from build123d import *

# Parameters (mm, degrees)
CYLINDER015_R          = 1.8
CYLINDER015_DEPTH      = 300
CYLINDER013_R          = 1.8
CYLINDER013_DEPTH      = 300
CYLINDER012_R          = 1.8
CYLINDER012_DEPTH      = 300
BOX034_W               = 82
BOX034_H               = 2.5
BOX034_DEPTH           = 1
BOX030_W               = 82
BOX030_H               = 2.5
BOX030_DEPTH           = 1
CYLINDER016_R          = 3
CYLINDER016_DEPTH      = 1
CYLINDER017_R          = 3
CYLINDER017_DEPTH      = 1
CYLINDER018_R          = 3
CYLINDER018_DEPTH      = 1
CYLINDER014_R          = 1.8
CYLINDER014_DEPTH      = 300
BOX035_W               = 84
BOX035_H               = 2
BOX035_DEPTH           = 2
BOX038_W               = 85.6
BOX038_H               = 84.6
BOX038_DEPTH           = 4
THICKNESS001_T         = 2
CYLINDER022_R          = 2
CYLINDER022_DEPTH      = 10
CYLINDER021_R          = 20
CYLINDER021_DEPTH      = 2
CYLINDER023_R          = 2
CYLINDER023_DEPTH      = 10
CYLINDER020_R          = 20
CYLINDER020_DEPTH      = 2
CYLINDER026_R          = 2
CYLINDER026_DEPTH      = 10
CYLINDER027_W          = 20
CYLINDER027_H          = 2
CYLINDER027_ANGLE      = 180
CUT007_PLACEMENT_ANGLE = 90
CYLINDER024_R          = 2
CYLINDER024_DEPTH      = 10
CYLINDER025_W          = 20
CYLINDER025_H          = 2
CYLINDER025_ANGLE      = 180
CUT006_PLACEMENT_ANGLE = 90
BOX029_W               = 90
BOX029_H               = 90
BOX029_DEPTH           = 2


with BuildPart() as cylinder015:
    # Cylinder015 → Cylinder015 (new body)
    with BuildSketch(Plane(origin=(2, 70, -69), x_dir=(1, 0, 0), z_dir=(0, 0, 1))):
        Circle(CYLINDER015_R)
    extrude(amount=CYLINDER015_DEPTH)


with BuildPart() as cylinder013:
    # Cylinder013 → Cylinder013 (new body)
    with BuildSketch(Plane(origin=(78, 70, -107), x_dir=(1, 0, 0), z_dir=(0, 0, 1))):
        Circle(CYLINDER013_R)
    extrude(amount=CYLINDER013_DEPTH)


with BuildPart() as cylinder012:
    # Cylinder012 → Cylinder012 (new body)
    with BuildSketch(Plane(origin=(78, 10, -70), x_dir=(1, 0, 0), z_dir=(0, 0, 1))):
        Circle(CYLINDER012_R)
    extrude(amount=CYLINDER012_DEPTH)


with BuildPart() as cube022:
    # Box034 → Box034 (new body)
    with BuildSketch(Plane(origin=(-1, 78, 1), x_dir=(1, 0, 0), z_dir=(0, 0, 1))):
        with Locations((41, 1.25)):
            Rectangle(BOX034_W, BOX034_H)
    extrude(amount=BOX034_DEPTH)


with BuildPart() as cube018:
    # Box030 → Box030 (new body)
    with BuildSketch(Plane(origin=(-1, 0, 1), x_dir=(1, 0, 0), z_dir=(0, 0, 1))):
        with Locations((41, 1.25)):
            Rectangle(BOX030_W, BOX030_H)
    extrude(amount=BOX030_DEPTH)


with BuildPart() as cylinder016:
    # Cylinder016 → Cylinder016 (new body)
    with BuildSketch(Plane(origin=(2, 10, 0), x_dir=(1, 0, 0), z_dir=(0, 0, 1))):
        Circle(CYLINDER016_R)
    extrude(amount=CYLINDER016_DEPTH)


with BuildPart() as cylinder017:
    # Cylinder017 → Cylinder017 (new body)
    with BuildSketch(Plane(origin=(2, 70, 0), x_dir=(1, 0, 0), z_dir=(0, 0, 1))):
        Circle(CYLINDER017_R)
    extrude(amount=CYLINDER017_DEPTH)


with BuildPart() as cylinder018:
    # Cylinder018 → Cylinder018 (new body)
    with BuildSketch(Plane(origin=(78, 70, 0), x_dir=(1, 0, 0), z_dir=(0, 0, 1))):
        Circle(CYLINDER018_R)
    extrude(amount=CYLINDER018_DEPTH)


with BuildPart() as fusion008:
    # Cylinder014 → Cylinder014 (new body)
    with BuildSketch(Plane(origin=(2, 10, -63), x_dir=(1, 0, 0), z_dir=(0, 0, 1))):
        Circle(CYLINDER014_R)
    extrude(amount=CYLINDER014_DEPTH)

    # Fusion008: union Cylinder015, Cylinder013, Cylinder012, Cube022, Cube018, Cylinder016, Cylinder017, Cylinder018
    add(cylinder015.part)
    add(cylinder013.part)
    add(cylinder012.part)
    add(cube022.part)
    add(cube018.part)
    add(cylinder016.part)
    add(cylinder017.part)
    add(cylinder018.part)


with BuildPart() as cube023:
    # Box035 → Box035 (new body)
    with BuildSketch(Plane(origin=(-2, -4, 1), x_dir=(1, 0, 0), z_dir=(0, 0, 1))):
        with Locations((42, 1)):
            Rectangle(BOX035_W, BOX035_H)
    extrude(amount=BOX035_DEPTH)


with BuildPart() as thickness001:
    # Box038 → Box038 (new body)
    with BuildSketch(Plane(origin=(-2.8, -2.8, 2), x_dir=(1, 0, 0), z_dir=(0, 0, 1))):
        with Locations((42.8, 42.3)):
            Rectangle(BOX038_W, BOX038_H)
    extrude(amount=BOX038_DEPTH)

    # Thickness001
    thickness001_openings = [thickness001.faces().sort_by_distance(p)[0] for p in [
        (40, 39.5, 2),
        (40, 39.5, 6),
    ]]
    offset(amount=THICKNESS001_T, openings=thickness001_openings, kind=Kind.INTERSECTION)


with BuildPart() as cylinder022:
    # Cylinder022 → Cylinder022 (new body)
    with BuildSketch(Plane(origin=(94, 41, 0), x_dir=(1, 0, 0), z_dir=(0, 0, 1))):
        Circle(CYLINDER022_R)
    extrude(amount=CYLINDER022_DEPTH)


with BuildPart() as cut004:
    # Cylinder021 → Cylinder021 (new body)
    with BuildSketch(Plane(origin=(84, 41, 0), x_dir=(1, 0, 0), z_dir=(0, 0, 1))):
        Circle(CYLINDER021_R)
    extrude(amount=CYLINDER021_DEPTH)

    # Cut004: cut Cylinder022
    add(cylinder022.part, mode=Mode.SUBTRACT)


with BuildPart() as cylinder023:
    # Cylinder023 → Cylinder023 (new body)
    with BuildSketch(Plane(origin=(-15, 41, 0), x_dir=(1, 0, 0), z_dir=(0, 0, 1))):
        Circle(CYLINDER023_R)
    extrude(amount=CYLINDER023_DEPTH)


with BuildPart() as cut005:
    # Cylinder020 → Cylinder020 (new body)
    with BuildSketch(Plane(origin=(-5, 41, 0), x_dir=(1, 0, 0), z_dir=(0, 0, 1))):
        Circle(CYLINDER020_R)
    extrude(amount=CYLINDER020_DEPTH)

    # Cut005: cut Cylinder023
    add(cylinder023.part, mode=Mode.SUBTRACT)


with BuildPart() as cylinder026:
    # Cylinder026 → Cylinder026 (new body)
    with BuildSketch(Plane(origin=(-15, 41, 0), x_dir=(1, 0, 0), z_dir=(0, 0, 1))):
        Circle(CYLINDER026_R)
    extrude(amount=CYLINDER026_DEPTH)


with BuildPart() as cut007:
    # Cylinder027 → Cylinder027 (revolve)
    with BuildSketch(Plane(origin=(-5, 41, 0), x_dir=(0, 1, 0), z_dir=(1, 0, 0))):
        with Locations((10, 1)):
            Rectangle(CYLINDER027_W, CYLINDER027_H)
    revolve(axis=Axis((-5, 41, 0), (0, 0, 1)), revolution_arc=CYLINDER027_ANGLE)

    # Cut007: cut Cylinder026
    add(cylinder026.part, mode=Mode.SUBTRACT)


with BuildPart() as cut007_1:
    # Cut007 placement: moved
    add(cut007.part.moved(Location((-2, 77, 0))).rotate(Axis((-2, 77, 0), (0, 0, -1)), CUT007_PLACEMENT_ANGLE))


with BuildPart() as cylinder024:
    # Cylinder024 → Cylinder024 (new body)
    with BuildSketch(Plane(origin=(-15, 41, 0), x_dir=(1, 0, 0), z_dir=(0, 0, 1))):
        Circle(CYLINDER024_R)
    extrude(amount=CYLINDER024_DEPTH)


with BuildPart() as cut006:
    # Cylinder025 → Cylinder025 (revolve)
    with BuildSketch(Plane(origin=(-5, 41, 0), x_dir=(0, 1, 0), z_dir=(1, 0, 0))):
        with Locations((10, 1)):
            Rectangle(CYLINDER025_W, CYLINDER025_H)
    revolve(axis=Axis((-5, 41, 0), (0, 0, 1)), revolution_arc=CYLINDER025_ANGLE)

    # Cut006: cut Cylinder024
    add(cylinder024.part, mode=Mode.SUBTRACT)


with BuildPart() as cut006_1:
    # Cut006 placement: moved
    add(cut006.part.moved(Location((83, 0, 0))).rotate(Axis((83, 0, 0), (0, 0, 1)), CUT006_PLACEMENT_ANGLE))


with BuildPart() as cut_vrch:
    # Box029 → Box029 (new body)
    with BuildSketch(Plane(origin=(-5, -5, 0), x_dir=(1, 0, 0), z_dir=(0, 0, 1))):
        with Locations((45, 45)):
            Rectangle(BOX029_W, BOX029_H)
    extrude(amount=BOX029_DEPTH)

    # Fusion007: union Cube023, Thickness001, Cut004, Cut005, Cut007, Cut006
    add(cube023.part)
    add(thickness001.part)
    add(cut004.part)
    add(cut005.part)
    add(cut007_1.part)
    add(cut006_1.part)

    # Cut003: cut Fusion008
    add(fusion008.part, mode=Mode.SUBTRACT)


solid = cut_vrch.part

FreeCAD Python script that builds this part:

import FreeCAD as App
import Part
import Sketcher
Q = App.Units.Quantity


def faces_at(feature, points):
    """Names of the faces that lie closest to the given points."""
    faces = feature.Shape.Faces
    near = lambda p: min(range(len(faces)), key=lambda i: faces[i].distToShape(Part.Vertex(*p))[0])
    return sorted({f"Face{near(p) + 1}" for p in points})

doc = App.newDocument("Part")
params = doc.addObject("Spreadsheet::Sheet", "Params")
for row, (alias, value) in enumerate([
    ("sketch1_diameter", "3.6 mm"),
    ("pad1_length", "300 mm"),
    ("sketch2_diameter", "3.6 mm"),
    ("pad2_length", "300 mm"),
    ("sketch3_diameter", "3.6 mm"),
    ("pad3_length", "300 mm"),
    ("sketch4_width", "82 mm"),
    ("sketch4_height", "2.5 mm"),
    ("pad4_length", "1 mm"),
    ("sketch5_width", "82 mm"),
    ("sketch5_height", "2.5 mm"),
    ("pad5_length", "1 mm"),
    ("sketch6_diameter", "6 mm"),
    ("pad6_length", "1 mm"),
    ("sketch7_diameter", "6 mm"),
    ("pad7_length", "1 mm"),
    ("sketch8_diameter", "6 mm"),
    ("pad8_length", "1 mm"),
    ("sketch9_diameter", "3.6 mm"),
    ("pad9_length", "300 mm"),
    ("sketch10_width", "84 mm"),
    ("sketch10_height", "2 mm"),
    ("pad10_length", "2 mm"),
    ("sketch11_width", "85.6 mm"),
    ("sketch11_height", "84.6 mm"),
    ("pad11_length", "4 mm"),
    ("thickness_wall", "2 mm"),
    ("sketch12_diameter", "4 mm"),
    ("pad12_length", "10 mm"),
    ("sketch13_diameter", "40 mm"),
    ("pad13_length", "2 mm"),
    ("sketch14_diameter", "4 mm"),
    ("pad14_length", "10 mm"),
    ("sketch15_diameter", "40 mm"),
    ("pad15_length", "2 mm"),
    ("sketch16_diameter", "4 mm"),
    ("pad16_length", "10 mm"),
    ("sketch17_width", "20 mm"),
    ("sketch17_height", "2 mm"),
    ("revolution_angle", "180 deg"),
    ("sketch18_diameter", "4 mm"),
    ("pad17_length", "10 mm"),
    ("sketch19_width", "20 mm"),
    ("sketch19_height", "2 mm"),
    ("revolution2_angle", "180 deg"),
    ("sketch20_width", "90 mm"),
    ("pad18_length", "2 mm"),
], start=1):
    params.set(f"A{row}", alias)
    params.set(f"B{row}", "=" + value)
    params.setAlias(f"B{row}", alias)

body = doc.addObject("PartDesign::Body", "Body")

# Sketch on XY plane
sketch1 = body.newObject("Sketcher::SketchObject", "Sketch")
sketch1.AttachmentSupport = (doc.getObject("XY_Plane"), [""])
sketch1.MapMode = "FlatFace"
sketch1.AttachmentOffset = App.Placement(App.Vector(0, 0, -69), App.Rotation())
sketch1.addGeometry(Part.Circle(App.Vector(2, 70, 0), App.Vector(0, 0, 1), 1.8), False)
sketch1.addConstraint([
    Sketcher.Constraint("Diameter", 0, Q("3.6 mm")),
    Sketcher.Constraint("DistanceX", -1, 1, 0, 3, Q("2 mm")),
    Sketcher.Constraint("DistanceY", -1, 1, 0, 3, Q("70 mm")),
])
sketch1.setExpression("Constraints[0]", "Params.sketch1_diameter")
pad1 = body.newObject("PartDesign::Pad", "Pad")
pad1.Profile = sketch1
pad1.setExpression("Length", "Params.pad1_length")
body2 = doc.addObject("PartDesign::Body", "Body001")

# Sketch on XY plane
sketch2 = body2.newObject("Sketcher::SketchObject", "Sketch001")
sketch2.AttachmentSupport = (doc.getObject("XY_Plane001"), [""])
sketch2.MapMode = "FlatFace"
sketch2.AttachmentOffset = App.Placement(App.Vector(0, 0, -107), App.Rotation())
sketch2.addGeometry(Part.Circle(App.Vector(78, 70, 0), App.Vector(0, 0, 1), 1.8), False)
sketch2.addConstraint([
    Sketcher.Constraint("Diameter", 0, Q("3.6 mm")),
    Sketcher.Constraint("DistanceX", -1, 1, 0, 3, Q("78 mm")),
    Sketcher.Constraint("DistanceY", -1, 1, 0, 3, Q("70 mm")),
])
sketch2.setExpression("Constraints[0]", "Params.sketch2_diameter")
pad2 = body2.newObject("PartDesign::Pad", "Pad001")
pad2.Profile = sketch2
pad2.setExpression("Length", "Params.pad2_length")
body3 = doc.addObject("PartDesign::Body", "Body002")

# Sketch on XY plane
sketch3 = body3.newObject("Sketcher::SketchObject", "Sketch002")
sketch3.AttachmentSupport = (doc.getObject("XY_Plane002"), [""])
sketch3.MapMode = "FlatFace"
sketch3.AttachmentOffset = App.Placement(App.Vector(0, 0, -70), App.Rotation())
sketch3.addGeometry(Part.Circle(App.Vector(78, 10, 0), App.Vector(0, 0, 1), 1.8), False)
sketch3.addConstraint([
    Sketcher.Constraint("Diameter", 0, Q("3.6 mm")),
    Sketcher.Constraint("DistanceX", -1, 1, 0, 3, Q("78 mm")),
    Sketcher.Constraint("DistanceY", -1, 1, 0, 3, Q("10 mm")),
])
sketch3.setExpression("Constraints[0]", "Params.sketch3_diameter")
pad3 = body3.newObject("PartDesign::Pad", "Pad002")
pad3.Profile = sketch3
pad3.setExpression("Length", "Params.pad3_length")
body4 = doc.addObject("PartDesign::Body", "Body003")

# Sketch on XY plane
sketch4 = body4.newObject("Sketcher::SketchObject", "Sketch003")
sketch4.AttachmentSupport = (doc.getObject("XY_Plane003"), [""])
sketch4.MapMode = "FlatFace"
sketch4.AttachmentOffset = App.Placement(App.Vector(0, 0, 1), App.Rotation())
sketch4.addGeometry([
    Part.LineSegment(App.Vector(-1, 80.5, 0), App.Vector(-1, 78, 0)),
    Part.LineSegment(App.Vector(-1, 78, 0), App.Vector(81, 78, 0)),
    Part.LineSegment(App.Vector(81, 78, 0), App.Vector(81, 80.5, 0)),
    Part.LineSegment(App.Vector(81, 80.5, 0), App.Vector(-1, 80.5, 0)),
], False)
sketch4.addConstraint([
    Sketcher.Constraint("Coincident", 0, 2, 1, 1),
    Sketcher.Constraint("Coincident", 1, 2, 2, 1),
    Sketcher.Constraint("Coincident", 2, 2, 3, 1),
    Sketcher.Constraint("Coincident", 3, 2, 0, 1),
    Sketcher.Constraint("Vertical", 0),
    Sketcher.Constraint("Horizontal", 1),
    Sketcher.Constraint("Vertical", 2),
    Sketcher.Constraint("Horizontal", 3),
    Sketcher.Constraint("DistanceX", 1, 1, 1, 2, Q("82 mm")),
    Sketcher.Constraint("DistanceY", 0, 2, 0, 1, Q("2.5 mm")),
    Sketcher.Constraint("DistanceX", 0, 2, -1, 1, Q("1 mm")),
    Sketcher.Constraint("DistanceY", -1, 1, 0, 2, Q("78 mm")),
])
sketch4.setExpression("Constraints[8]", "Params.sketch4_width")
sketch4.setExpression("Constraints[9]", "Params.sketch4_height")
pad4 = body4.newObject("PartDesign::Pad", "Pad003")
pad4.Profile = sketch4
pad4.setExpression("Length", "Params.pad4_length")
body5 = doc.addObject("PartDesign::Body", "Body004")

# Sketch on XY plane
sketch5 = body5.newObject("Sketcher::SketchObject", "Sketch004")
sketch5.AttachmentSupport = (doc.getObject("XY_Plane004"), [""])
sketch5.MapMode = "FlatFace"
sketch5.AttachmentOffset = App.Placement(App.Vector(0, 0, 1), App.Rotation())
sketch5.addGeometry([
    Part.LineSegment(App.Vector(-1, 2.5, 0), App.Vector(-1, 0, 0)),
    Part.LineSegment(App.Vector(-1, 0, 0), App.Vector(81, 0, 0)),
    Part.LineSegment(App.Vector(81, 0, 0), App.Vector(81, 2.5, 0)),
    Part.LineSegment(App.Vector(81, 2.5, 0), App.Vector(-1, 2.5, 0)),
], False)
sketch5.addConstraint([
    Sketcher.Constraint("Coincident", 0, 2, 1, 1),
    Sketcher.Constraint("Coincident", 1, 2, 2, 1),
    Sketcher.Constraint("Coincident", 2, 2, 3, 1),
    Sketcher.Constraint("Coincident", 3, 2, 0, 1),
    Sketcher.Constraint("Vertical", 0),
    Sketcher.Constraint("Horizontal", 1),
    Sketcher.Constraint("Vertical", 2),
    Sketcher.Constraint("Horizontal", 3),
    Sketcher.Constraint("PointOnObject", 0, 2, -1),
    Sketcher.Constraint("DistanceX", 1, 1, 1, 2, Q("82 mm")),
    Sketcher.Constraint("DistanceY", 0, 2, 0, 1, Q("2.5 mm")),
    Sketcher.Constraint("DistanceX", 0, 2, -1, 1, Q("1 mm")),
])
sketch5.setExpression("Constraints[9]", "Params.sketch5_width")
sketch5.setExpression("Constraints[10]", "Params.sketch5_height")
pad5 = body5.newObject("PartDesign::Pad", "Pad004")
pad5.Profile = sketch5
pad5.setExpression("Length", "Params.pad5_length")
body6 = doc.addObject("PartDesign::Body", "Body005")

# Sketch on XY plane
sketch6 = body6.newObject("Sketcher::SketchObject", "Sketch005")
sketch6.AttachmentSupport = (doc.getObject("XY_Plane005"), [""])
sketch6.MapMode = "FlatFace"
sketch6.addGeometry(Part.Circle(App.Vector(2, 10, 0), App.Vector(0, 0, 1), 3), False)
sketch6.addConstraint([
    Sketcher.Constraint("Diameter", 0, Q("6 mm")),
    Sketcher.Constraint("DistanceX", -1, 1, 0, 3, Q("2 mm")),
    Sketcher.Constraint("DistanceY", -1, 1, 0, 3, Q("10 mm")),
])
sketch6.setExpression("Constraints[0]", "Params.sketch6_diameter")
pad6 = body6.newObject("PartDesign::Pad", "Pad005")
pad6.Profile = sketch6
pad6.setExpression("Length", "Params.pad6_length")
body7 = doc.addObject("PartDesign::Body", "Body006")

# Sketch on XY plane
sketch7 = body7.newObject("Sketcher::SketchObject", "Sketch006")
sketch7.AttachmentSupport = (doc.getObject("XY_Plane006"), [""])
sketch7.MapMode = "FlatFace"
sketch7.addGeometry(Part.Circle(App.Vector(2, 70, 0), App.Vector(0, 0, 1), 3), False)
sketch7.addConstraint([
    Sketcher.Constraint("Diameter", 0, Q("6 mm")),
    Sketcher.Constraint("DistanceX", -1, 1, 0, 3, Q("2 mm")),
    Sketcher.Constraint("DistanceY", -1, 1, 0, 3, Q("70 mm")),
])
sketch7.setExpression("Constraints[0]", "Params.sketch7_diameter")
pad7 = body7.newObject("PartDesign::Pad", "Pad006")
pad7.Profile = sketch7
pad7.setExpression("Length", "Params.pad7_length")
body8 = doc.addObject("PartDesign::Body", "Body007")

# Sketch on XY plane
sketch8 = body8.newObject("Sketcher::SketchObject", "Sketch007")
sketch8.AttachmentSupport = (doc.getObject("XY_Plane007"), [""])
sketch8.MapMode = "FlatFace"
sketch8.addGeometry(Part.Circle(App.Vector(78, 70, 0), App.Vector(0, 0, 1), 3), False)
sketch8.addConstraint([
    Sketcher.Constraint("Diameter", 0, Q("6 mm")),
    Sketcher.Constraint("DistanceX", -1, 1, 0, 3, Q("78 mm")),
    Sketcher.Constraint("DistanceY", -1, 1, 0, 3, Q("70 mm")),
])
sketch8.setExpression("Constraints[0]", "Params.sketch8_diameter")
pad8 = body8.newObject("PartDesign::Pad", "Pad007")
pad8.Profile = sketch8
pad8.setExpression("Length", "Params.pad8_length")
body9 = doc.addObject("PartDesign::Body", "Body008")
body9.AllowCompound = True

# Sketch on XY plane
sketch9 = body9.newObject("Sketcher::SketchObject", "Sketch008")
sketch9.AttachmentSupport = (doc.getObject("XY_Plane008"), [""])
sketch9.MapMode = "FlatFace"
sketch9.AttachmentOffset = App.Placement(App.Vector(0, 0, -63), App.Rotation())
sketch9.addGeometry(Part.Circle(App.Vector(2, 10, 0), App.Vector(0, 0, 1), 1.8), False)
sketch9.addConstraint([
    Sketcher.Constraint("Diameter", 0, Q("3.6 mm")),
    Sketcher.Constraint("DistanceX", -1, 1, 0, 3, Q("2 mm")),
    Sketcher.Constraint("DistanceY", -1, 1, 0, 3, Q("10 mm")),
])
sketch9.setExpression("Constraints[0]", "Params.sketch9_diameter")
pad9 = body9.newObject("PartDesign::Pad", "Pad008")
pad9.Profile = sketch9
pad9.setExpression("Length", "Params.pad9_length")
doc.recompute()

boolean = body9.newObject("PartDesign::Boolean", "Boolean")
boolean.Type = "Fuse"
boolean.addObjects([body])
doc.recompute()

boolean2 = body9.newObject("PartDesign::Boolean", "Boolean001")
boolean2.Type = "Fuse"
boolean2.addObjects([body2])
doc.recompute()

boolean3 = body9.newObject("PartDesign::Boolean", "Boolean002")
boolean3.Type = "Fuse"
boolean3.addObjects([body3])
doc.recompute()

boolean4 = body9.newObject("PartDesign::Boolean", "Boolean003")
boolean4.Type = "Fuse"
boolean4.addObjects([body4])
doc.recompute()

boolean5 = body9.newObject("PartDesign::Boolean", "Boolean004")
boolean5.Type = "Fuse"
boolean5.addObjects([body5])
doc.recompute()

boolean6 = body9.newObject("PartDesign::Boolean", "Boolean005")
boolean6.Type = "Fuse"
boolean6.addObjects([body6])
doc.recompute()

boolean7 = body9.newObject("PartDesign::Boolean", "Boolean006")
boolean7.Type = "Fuse"
boolean7.addObjects([body7])
doc.recompute()

boolean8 = body9.newObject("PartDesign::Boolean", "Boolean007")
boolean8.Type = "Fuse"
boolean8.addObjects([body8])
body10 = doc.addObject("PartDesign::Body", "Body009")

# Sketch on XY plane
sketch10 = body10.newObject("Sketcher::SketchObject", "Sketch009")
sketch10.AttachmentSupport = (doc.getObject("XY_Plane009"), [""])
sketch10.MapMode = "FlatFace"
sketch10.AttachmentOffset = App.Placement(App.Vector(0, 0, 1), App.Rotation())
sketch10.addGeometry([
    Part.LineSegment(App.Vector(-2, -2, 0), App.Vector(-2, -4, 0)),
    Part.LineSegment(App.Vector(-2, -4, 0), App.Vector(82, -4, 0)),
    Part.LineSegment(App.Vector(82, -4, 0), App.Vector(82, -2, 0)),
    Part.LineSegment(App.Vector(82, -2, 0), App.Vector(-2, -2, 0)),
], False)
sketch10.addConstraint([
    Sketcher.Constraint("Coincident", 0, 2, 1, 1),
    Sketcher.Constraint("Coincident", 1, 2, 2, 1),
    Sketcher.Constraint("Coincident", 2, 2, 3, 1),
    Sketcher.Constraint("Coincident", 3, 2, 0, 1),
    Sketcher.Constraint("Vertical", 0),
    Sketcher.Constraint("Horizontal", 1),
    Sketcher.Constraint("Vertical", 2),
    Sketcher.Constraint("Horizontal", 3),
    Sketcher.Constraint("DistanceX", 1, 1, 1, 2, Q("84 mm")),
    Sketcher.Constraint("DistanceY", 0, 2, 0, 1, Q("2 mm")),
    Sketcher.Constraint("DistanceX", 0, 2, -1, 1, Q("2 mm")),
    Sketcher.Constraint("DistanceY", 0, 2, -1, 1, Q("4 mm")),
])
sketch10.setExpression("Constraints[8]", "Params.sketch10_width")
sketch10.setExpression("Constraints[9]", "Params.sketch10_height")
pad10 = body10.newObject("PartDesign::Pad", "Pad009")
pad10.Profile = sketch10
pad10.setExpression("Length", "Params.pad10_length")
body11 = doc.addObject("PartDesign::Body", "Body010")

# Sketch on XY plane
sketch11 = body11.newObject("Sketcher::SketchObject", "Sketch010")
sketch11.AttachmentSupport = (doc.getObject("XY_Plane010"), [""])
sketch11.MapMode = "FlatFace"
sketch11.AttachmentOffset = App.Placement(App.Vector(0, 0, 2), App.Rotation())
sketch11.addGeometry([
    Part.LineSegment(App.Vector(-3, 82, 0), App.Vector(-3, -3, 0)),
    Part.LineSegment(App.Vector(-3, -3, 0), App.Vector(83, -3, 0)),
    Part.LineSegment(App.Vector(83, -3, 0), App.Vector(83, 82, 0)),
    Part.LineSegment(App.Vector(83, 82, 0), App.Vector(-3, 82, 0)),
], False)
sketch11.addConstraint([
    Sketcher.Constraint("Coincident", 0, 2, 1, 1),
    Sketcher.Constraint("Coincident", 1, 2, 2, 1),
    Sketcher.Constraint("Coincident", 2, 2, 3, 1),
    Sketcher.Constraint("Coincident", 3, 2, 0, 1),
    Sketcher.Constraint("Vertical", 0),
    Sketcher.Constraint("Horizontal", 1),
    Sketcher.Constraint("Vertical", 2),
    Sketcher.Constraint("Horizontal", 3),
    Sketcher.Constraint("DistanceX", 1, 1, 1, 2, Q("85.6 mm")),
    Sketcher.Constraint("DistanceY", 0, 2, 0, 1, Q("84.6 mm")),
    Sketcher.Constraint("DistanceX", 0, 2, -1, 1, Q("2.8 mm")),
    Sketcher.Constraint("DistanceY", 0, 2, -1, 1, Q("2.8 mm")),
])
sketch11.setExpression("Constraints[8]", "Params.sketch11_width")
sketch11.setExpression("Constraints[9]", "Params.sketch11_height")
pad11 = body11.newObject("PartDesign::Pad", "Pad010")
pad11.Profile = sketch11
pad11.setExpression("Length", "Params.pad11_length")
doc.recompute()

thickness = body11.newObject("PartDesign::Thickness", "Thickness")
thickness.Base = (pad11, faces_at(pad11, [(40, 39.5, 2), (40, 39.5, 6)]))
thickness.setExpression("Value", "Params.thickness_wall")
thickness.Reversed = False
thickness.Join = "Intersection"
body12 = doc.addObject("PartDesign::Body", "Body011")

# Sketch on XY plane
sketch12 = body12.newObject("Sketcher::SketchObject", "Sketch011")
sketch12.AttachmentSupport = (doc.getObject("XY_Plane011"), [""])
sketch12.MapMode = "FlatFace"
sketch12.addGeometry(Part.Circle(App.Vector(94, 41, 0), App.Vector(0, 0, 1), 2), False)
sketch12.addConstraint([
    Sketcher.Constraint("Diameter", 0, Q("4 mm")),
    Sketcher.Constraint("DistanceX", -1, 1, 0, 3, Q("94 mm")),
    Sketcher.Constraint("DistanceY", -1, 1, 0, 3, Q("41 mm")),
])
sketch12.setExpression("Constraints[0]", "Params.sketch12_diameter")
pad12 = body12.newObject("PartDesign::Pad", "Pad011")
pad12.Profile = sketch12
pad12.setExpression("Length", "Params.pad12_length")
body13 = doc.addObject("PartDesign::Body", "Body012")

# Sketch on XY plane
sketch13 = body13.newObject("Sketcher::SketchObject", "Sketch012")
sketch13.AttachmentSupport = (doc.getObject("XY_Plane012"), [""])
sketch13.MapMode = "FlatFace"
sketch13.addGeometry(Part.Circle(App.Vector(84, 41, 0), App.Vector(0, 0, 1), 20), False)
sketch13.addConstraint([
    Sketcher.Constraint("Diameter", 0, Q("40 mm")),
    Sketcher.Constraint("DistanceX", -1, 1, 0, 3, Q("84 mm")),
    Sketcher.Constraint("DistanceY", -1, 1, 0, 3, Q("41 mm")),
])
sketch13.setExpression("Constraints[0]", "Params.sketch13_diameter")
pad13 = body13.newObject("PartDesign::Pad", "Pad012")
pad13.Profile = sketch13
pad13.setExpression("Length", "Params.pad13_length")
doc.recompute()

boolean9 = body13.newObject("PartDesign::Boolean", "Boolean008")
boolean9.Type = "Cut"
boolean9.addObjects([body12])
body14 = doc.addObject("PartDesign::Body", "Body013")

# Sketch on XY plane
sketch14 = body14.newObject("Sketcher::SketchObject", "Sketch013")
sketch14.AttachmentSupport = (doc.getObject("XY_Plane013"), [""])
sketch14.MapMode = "FlatFace"
sketch14.addGeometry(Part.Circle(App.Vector(-15, 41, 0), App.Vector(0, 0, 1), 2), False)
sketch14.addConstraint([
    Sketcher.Constraint("Diameter", 0, Q("4 mm")),
    Sketcher.Constraint("DistanceX", 0, 3, -1, 1, Q("15 mm")),
    Sketcher.Constraint("DistanceY", -1, 1, 0, 3, Q("41 mm")),
])
sketch14.setExpression("Constraints[0]", "Params.sketch14_diameter")
pad14 = body14.newObject("PartDesign::Pad", "Pad013")
pad14.Profile = sketch14
pad14.setExpression("Length", "Params.pad14_length")
body15 = doc.addObject("PartDesign::Body", "Body014")

# Sketch on XY plane
sketch15 = body15.newObject("Sketcher::SketchObject", "Sketch014")
sketch15.AttachmentSupport = (doc.getObject("XY_Plane014"), [""])
sketch15.MapMode = "FlatFace"
sketch15.addGeometry(Part.Circle(App.Vector(-5, 41, 0), App.Vector(0, 0, 1), 20), False)
sketch15.addConstraint([
    Sketcher.Constraint("Diameter", 0, Q("40 mm")),
    Sketcher.Constraint("DistanceX", 0, 3, -1, 1, Q("5 mm")),
    Sketcher.Constraint("DistanceY", -1, 1, 0, 3, Q("41 mm")),
])
sketch15.setExpression("Constraints[0]", "Params.sketch15_diameter")
pad15 = body15.newObject("PartDesign::Pad", "Pad014")
pad15.Profile = sketch15
pad15.setExpression("Length", "Params.pad15_length")
doc.recompute()

boolean10 = body15.newObject("PartDesign::Boolean", "Boolean009")
boolean10.Type = "Cut"
boolean10.addObjects([body14])
body16 = doc.addObject("PartDesign::Body", "Body015")

# Sketch on XY plane
sketch16 = body16.newObject("Sketcher::SketchObject", "Sketch015")
sketch16.AttachmentSupport = (doc.getObject("XY_Plane015"), [""])
sketch16.MapMode = "FlatFace"
sketch16.addGeometry(Part.Circle(App.Vector(-15, 41, 0), App.Vector(0, 0, 1), 2), False)
sketch16.addConstraint([
    Sketcher.Constraint("Diameter", 0, Q("4 mm")),
    Sketcher.Constraint("DistanceX", 0, 3, -1, 1, Q("15 mm")),
    Sketcher.Constraint("DistanceY", -1, 1, 0, 3, Q("41 mm")),
])
sketch16.setExpression("Constraints[0]", "Params.sketch16_diameter")
pad16 = body16.newObject("PartDesign::Pad", "Pad015")
pad16.Profile = sketch16
pad16.setExpression("Length", "Params.pad16_length")
body17 = doc.addObject("PartDesign::Body", "Body016")

# Sketch on YZ plane
sketch17 = body17.newObject("Sketcher::SketchObject", "Sketch016")
sketch17.AttachmentSupport = (doc.getObject("YZ_Plane016"), [""])
sketch17.MapMode = "FlatFace"
sketch17.AttachmentOffset = App.Placement(App.Vector(0, 0, -5), App.Rotation())
sketch17.addGeometry([
    Part.LineSegment(App.Vector(41, 2, 0), App.Vector(41, 0, 0)),
    Part.LineSegment(App.Vector(41, 0, 0), App.Vector(61, 0, 0)),
    Part.LineSegment(App.Vector(61, 0, 0), App.Vector(61, 2, 0)),
    Part.LineSegment(App.Vector(61, 2, 0), App.Vector(41, 2, 0)),
], False)
sketch17.addGeometry(Part.LineSegment(App.Vector(41, 0, 0), App.Vector(41, 2, 0)), True)  # axis
sketch17.addConstraint([
    Sketcher.Constraint("Coincident", 0, 2, 1, 1),
    Sketcher.Constraint("Coincident", 1, 2, 2, 1),
    Sketcher.Constraint("Coincident", 2, 2, 3, 1),
    Sketcher.Constraint("Coincident", 3, 2, 0, 1),
    Sketcher.Constraint("Vertical", 0),
    Sketcher.Constraint("Horizontal", 1),
    Sketcher.Constraint("Vertical", 2),
    Sketcher.Constraint("Horizontal", 3),
    Sketcher.Constraint("Vertical", 4),
    Sketcher.Constraint("Coincident", 4, 1, 0, 2),
    Sketcher.Constraint("PointOnObject", 0, 2, -1),
    Sketcher.Constraint("Horizontal", 2, 2, 4, 2),
    Sketcher.Constraint("DistanceX", 1, 1, 1, 2, Q("20 mm")),
    Sketcher.Constraint("DistanceY", 0, 2, 0, 1, Q("2 mm")),
    Sketcher.Constraint("DistanceX", -1, 1, 0, 2, Q("41 mm")),
])
sketch17.setExpression("Constraints[12]", "Params.sketch17_width")
sketch17.setExpression("Constraints[13]", "Params.sketch17_height")
revolution = body17.newObject("PartDesign::Revolution", "Revolution")
revolution.Profile = sketch17
revolution.ReferenceAxis = (sketch17, ["Axis0"])
revolution.setExpression("Angle", "Params.revolution_angle")
doc.recompute()

boolean11 = body17.newObject("PartDesign::Boolean", "Boolean010")
boolean11.Type = "Cut"
boolean11.addObjects([body16])
body18 = doc.addObject("PartDesign::Body", "Body017")
doc.recompute()

body17.Placement = App.Placement(App.Vector(-2, 77, 0), App.Rotation(App.Vector(0, 0, -1), 90))
boolean12 = body18.newObject("PartDesign::Boolean", "Boolean011")
boolean12.Type = "Fuse"
boolean12.addObjects([body17])
body19 = doc.addObject("PartDesign::Body", "Body018")

# Sketch on XY plane
sketch18 = body19.newObject("Sketcher::SketchObject", "Sketch017")
sketch18.AttachmentSupport = (doc.getObject("XY_Plane018"), [""])
sketch18.MapMode = "FlatFace"
sketch18.addGeometry(Part.Circle(App.Vector(-15, 41, 0), App.Vector(0, 0, 1), 2), False)
sketch18.addConstraint([
    Sketcher.Constraint("Diameter", 0, Q("4 mm")),
    Sketcher.Constraint("DistanceX", 0, 3, -1, 1, Q("15 mm")),
    Sketcher.Constraint("DistanceY", -1, 1, 0, 3, Q("41 mm")),
])
sketch18.setExpression("Constraints[0]", "Params.sketch18_diameter")
pad17 = body19.newObject("PartDesign::Pad", "Pad016")
pad17.Profile = sketch18
pad17.setExpression("Length", "Params.pad17_length")
body20 = doc.addObject("PartDesign::Body", "Body019")

# Sketch on YZ plane
sketch19 = body20.newObject("Sketcher::SketchObject", "Sketch018")
sketch19.AttachmentSupport = (doc.getObject("YZ_Plane019"), [""])
sketch19.MapMode = "FlatFace"
sketch19.AttachmentOffset = App.Placement(App.Vector(0, 0, -5), App.Rotation())
sketch19.addGeometry([
    Part.LineSegment(App.Vector(41, 2, 0), App.Vector(41, 0, 0)),
    Part.LineSegment(App.Vector(41, 0, 0), App.Vector(61, 0, 0)),
    Part.LineSegment(App.Vector(61, 0, 0), App.Vector(61, 2, 0)),
    Part.LineSegment(App.Vector(61, 2, 0), App.Vector(41, 2, 0)),
], False)
sketch19.addGeometry(Part.LineSegment(App.Vector(41, 0, 0), App.Vector(41, 2, 0)), True)  # axis
sketch19.addConstraint([
    Sketcher.Constraint("Coincident", 0, 2, 1, 1),
    Sketcher.Constraint("Coincident", 1, 2, 2, 1),
    Sketcher.Constraint("Coincident", 2, 2, 3, 1),
    Sketcher.Constraint("Coincident", 3, 2, 0, 1),
    Sketcher.Constraint("Vertical", 0),
    Sketcher.Constraint("Horizontal", 1),
    Sketcher.Constraint("Vertical", 2),
    Sketcher.Constraint("Horizontal", 3),
    Sketcher.Constraint("Vertical", 4),
    Sketcher.Constraint("Coincident", 4, 1, 0, 2),
    Sketcher.Constraint("PointOnObject", 0, 2, -1),
    Sketcher.Constraint("Horizontal", 2, 2, 4, 2),
    Sketcher.Constraint("DistanceX", 1, 1, 1, 2, Q("20 mm")),
    Sketcher.Constraint("DistanceY", 0, 2, 0, 1, Q("2 mm")),
    Sketcher.Constraint("DistanceX", -1, 1, 0, 2, Q("41 mm")),
])
sketch19.setExpression("Constraints[12]", "Params.sketch19_width")
sketch19.setExpression("Constraints[13]", "Params.sketch19_height")
revolution2 = body20.newObject("PartDesign::Revolution", "Revolution001")
revolution2.Profile = sketch19
revolution2.ReferenceAxis = (sketch19, ["Axis0"])
revolution2.setExpression("Angle", "Params.revolution2_angle")
doc.recompute()

boolean13 = body20.newObject("PartDesign::Boolean", "Boolean012")
boolean13.Type = "Cut"
boolean13.addObjects([body19])
body21 = doc.addObject("PartDesign::Body", "Body020")
doc.recompute()

body20.Placement = App.Placement(App.Vector(83, 0, 0), App.Rotation(App.Vector(0, 0, 1), 90))
boolean14 = body21.newObject("PartDesign::Boolean", "Boolean013")
boolean14.Type = "Fuse"
boolean14.addObjects([body20])
body22 = doc.addObject("PartDesign::Body", "Body021")

# Sketch on XY plane
sketch20 = body22.newObject("Sketcher::SketchObject", "Sketch019")
sketch20.AttachmentSupport = (doc.getObject("XY_Plane021"), [""])
sketch20.MapMode = "FlatFace"
sketch20.addGeometry([
    Part.LineSegment(App.Vector(-5, 85, 0), App.Vector(-5, -5, 0)),
    Part.LineSegment(App.Vector(-5, -5, 0), App.Vector(85, -5, 0)),
    Part.LineSegment(App.Vector(85, -5, 0), App.Vector(85, 85, 0)),
    Part.LineSegment(App.Vector(85, 85, 0), App.Vector(-5, 85, 0)),
], False)
sketch20.addConstraint([
    Sketcher.Constraint("Coincident", 0, 2, 1, 1),
    Sketcher.Constraint("Coincident", 1, 2, 2, 1),
    Sketcher.Constraint("Coincident", 2, 2, 3, 1),
    Sketcher.Constraint("Coincident", 3, 2, 0, 1),
    Sketcher.Constraint("Vertical", 0),
    Sketcher.Constraint("Horizontal", 1),
    Sketcher.Constraint("Vertical", 2),
    Sketcher.Constraint("Horizontal", 3),
    Sketcher.Constraint("Equal", 3, 0),
    Sketcher.Constraint("DistanceX", 1, 1, 1, 2, Q("90 mm")),
    Sketcher.Constraint("DistanceX", 0, 2, -1, 1, Q("5 mm")),
    Sketcher.Constraint("DistanceY", 0, 2, -1, 1, Q("5 mm")),
])
sketch20.setExpression("Constraints[9]", "Params.sketch20_width")
pad18 = body22.newObject("PartDesign::Pad", "Pad017")
pad18.Profile = sketch20
pad18.setExpression("Length", "Params.pad18_length")
doc.recompute()

boolean15 = body22.newObject("PartDesign::Boolean", "Boolean014")
boolean15.Type = "Fuse"
boolean15.addObjects([body10])
doc.recompute()

boolean16 = body22.newObject("PartDesign::Boolean", "Boolean015")
boolean16.Type = "Fuse"
boolean16.addObjects([body11])
doc.recompute()

boolean17 = body22.newObject("PartDesign::Boolean", "Boolean016")
boolean17.Type = "Fuse"
boolean17.addObjects([body13])
doc.recompute()

boolean18 = body22.newObject("PartDesign::Boolean", "Boolean017")
boolean18.Type = "Fuse"
boolean18.addObjects([body15])
doc.recompute()

boolean19 = body22.newObject("PartDesign::Boolean", "Boolean018")
boolean19.Type = "Fuse"
boolean19.addObjects([body18])
doc.recompute()

boolean20 = body22.newObject("PartDesign::Boolean", "Boolean019")
boolean20.Type = "Fuse"
boolean20.addObjects([body21])
doc.recompute()

boolean21 = body22.newObject("PartDesign::Boolean", "Boolean020")
boolean21.Type = "Cut"
boolean21.addObjects([body9])

doc.recompute()
